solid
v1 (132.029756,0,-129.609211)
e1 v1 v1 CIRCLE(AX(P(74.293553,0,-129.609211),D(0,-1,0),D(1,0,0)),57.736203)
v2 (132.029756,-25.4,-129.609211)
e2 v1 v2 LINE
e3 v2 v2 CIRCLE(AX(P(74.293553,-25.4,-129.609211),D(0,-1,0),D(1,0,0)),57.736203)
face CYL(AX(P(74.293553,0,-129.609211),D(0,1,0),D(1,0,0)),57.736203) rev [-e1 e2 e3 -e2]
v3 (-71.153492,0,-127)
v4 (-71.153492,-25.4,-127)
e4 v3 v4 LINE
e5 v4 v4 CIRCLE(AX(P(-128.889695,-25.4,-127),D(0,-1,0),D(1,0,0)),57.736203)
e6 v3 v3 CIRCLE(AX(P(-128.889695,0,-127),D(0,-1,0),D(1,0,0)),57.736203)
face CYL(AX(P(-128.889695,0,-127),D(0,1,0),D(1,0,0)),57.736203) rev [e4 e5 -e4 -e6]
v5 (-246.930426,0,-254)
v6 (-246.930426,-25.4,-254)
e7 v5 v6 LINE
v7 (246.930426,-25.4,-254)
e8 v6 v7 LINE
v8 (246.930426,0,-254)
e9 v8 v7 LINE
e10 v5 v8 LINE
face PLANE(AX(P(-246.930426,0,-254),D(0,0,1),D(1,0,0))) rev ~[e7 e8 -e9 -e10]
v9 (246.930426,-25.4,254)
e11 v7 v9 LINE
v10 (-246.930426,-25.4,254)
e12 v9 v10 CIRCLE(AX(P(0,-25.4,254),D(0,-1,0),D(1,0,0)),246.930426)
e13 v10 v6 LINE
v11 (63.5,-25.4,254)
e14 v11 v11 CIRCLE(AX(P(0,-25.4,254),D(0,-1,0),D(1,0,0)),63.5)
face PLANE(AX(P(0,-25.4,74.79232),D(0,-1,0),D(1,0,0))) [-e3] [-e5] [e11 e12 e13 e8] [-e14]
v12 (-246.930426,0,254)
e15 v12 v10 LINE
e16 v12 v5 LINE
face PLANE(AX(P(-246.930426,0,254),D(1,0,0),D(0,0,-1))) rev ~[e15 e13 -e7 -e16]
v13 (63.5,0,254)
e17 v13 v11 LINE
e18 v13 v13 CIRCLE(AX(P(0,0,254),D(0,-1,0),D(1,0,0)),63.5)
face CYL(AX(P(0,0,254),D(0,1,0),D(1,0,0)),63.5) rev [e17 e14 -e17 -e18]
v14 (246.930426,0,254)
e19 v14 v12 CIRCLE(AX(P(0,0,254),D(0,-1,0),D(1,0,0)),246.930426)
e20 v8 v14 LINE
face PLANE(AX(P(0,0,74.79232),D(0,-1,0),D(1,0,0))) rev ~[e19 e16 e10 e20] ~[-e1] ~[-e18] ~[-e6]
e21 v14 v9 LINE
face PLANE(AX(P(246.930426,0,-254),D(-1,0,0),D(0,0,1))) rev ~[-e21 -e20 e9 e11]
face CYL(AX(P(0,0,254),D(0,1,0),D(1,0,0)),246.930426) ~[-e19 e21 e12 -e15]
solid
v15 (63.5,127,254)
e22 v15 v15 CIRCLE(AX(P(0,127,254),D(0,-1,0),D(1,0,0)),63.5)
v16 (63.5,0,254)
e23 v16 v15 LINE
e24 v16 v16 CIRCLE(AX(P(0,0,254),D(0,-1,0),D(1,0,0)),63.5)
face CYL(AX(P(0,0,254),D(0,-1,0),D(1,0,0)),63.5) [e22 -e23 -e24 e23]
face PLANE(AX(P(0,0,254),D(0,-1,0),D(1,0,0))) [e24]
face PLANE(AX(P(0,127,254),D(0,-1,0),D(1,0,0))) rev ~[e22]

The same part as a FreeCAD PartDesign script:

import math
import FreeCAD as App
import Part
import Sketcher

V = App.Vector
Q = App.Units.Quantity

doc = App.newDocument("Part")
body = doc.addObject("PartDesign::Body", "Body")
body.AllowCompound = True

sketch1 = body.newObject("Sketcher::SketchObject", "Sketch")
sketch1.AttachmentSupport = (doc.getObject("XZ_Plane"), [""])
sketch1.MapMode = "FlatFace"
sketch1.addGeometry(Part.LineSegment(V(-247, 254, 0), V(-247, -254, 0)), False)
sketch1.addGeometry(Part.LineSegment(V(-247, -254, 0), V(247, -254, 0)), False)
sketch1.addGeometry(Part.LineSegment(V(247, -254, 0), V(247, 254, 0)), False)
sketch1.addGeometry(Part.ArcOfCircle(Part.Circle(V(0, 254, 0), V(0, 0, 1), 247), math.radians(0), math.radians(180)), False)
sketch1.addGeometry(Part.Circle(V(-129, -127, 0), V(0, 0, 1), 58), False)
sketch1.addGeometry(Part.Circle(V(74, -130, 0), V(0, 0, 1), 58), False)
sketch1.addGeometry(Part.Circle(V(0, 254, 0), V(0, 0, 1), 64), False)
sketch1.addConstraint(Sketcher.Constraint("Coincident", 0, 2, 1, 1))
sketch1.addConstraint(Sketcher.Constraint("Coincident", 1, 2, 2, 1))
sketch1.addConstraint(Sketcher.Constraint("Tangent", 2, 2, 3, 1))
sketch1.addConstraint(Sketcher.Constraint("Tangent", 3, 2, 0, 1))
sketch1.addConstraint(Sketcher.Constraint("Vertical", 0))
sketch1.addConstraint(Sketcher.Constraint("Horizontal", 1))
sketch1.addConstraint(Sketcher.Constraint("Vertical", 2))
sketch1.addConstraint(Sketcher.Constraint("Coincident", 6, 3, 3, 3))
sketch1.addConstraint(Sketcher.Constraint("Equal", 4, 5))
sketch1.addConstraint(Sketcher.Constraint("Symmetric", 0, 2, 2, 2, -1, 1))
sketch1.addConstraint(Sketcher.Constraint("Diameter", 6, Q("5 in")))
sketch1.addConstraint(Sketcher.Constraint("DistanceY", 0, 2, 0, 1, Q("20 in")))
sketch1.addConstraint(Sketcher.Constraint("DistanceY", 4, 3, -1, 1, Q("5 in")))
sketch1.addConstraint(Sketcher.Constraint("Diameter", 4, Q("115.472406 mm")))
sketch1.addConstraint(Sketcher.Constraint("Radius", 3, Q("246.930426 mm")))
sketch1.addConstraint(Sketcher.Constraint("DistanceY", 5, 3, -1, 1, Q("129.609211 mm")))
sketch1.addConstraint(Sketcher.Constraint("DistanceX", 4, 3, 5, 3, Q("203.183248 mm")))
sketch1.addConstraint(Sketcher.Constraint("DistanceX", 0, 2, 4, 3, Q("118.040731 mm")))
pad1 = body.newObject("PartDesign::Pad", "Pad")
pad1.Profile = sketch1
pad1.Length = Q("1 in")

sketch2 = body.newObject("Sketcher::SketchObject", "Sketch001")
sketch2.AttachmentSupport = (doc.getObject("XZ_Plane"), [""])
sketch2.MapMode = "FlatFace"
sketch2.addGeometry(Part.Circle(V(0, 254, 0), V(0, 0, 1), 64), False)
sketch2.addConstraint(Sketcher.Constraint("PointOnObject", 0, 3, -2))
sketch2.addConstraint(Sketcher.Constraint("Diameter", 0, Q("5 in")))
sketch2.addConstraint(Sketcher.Constraint("DistanceY", -1, 1, 0, 3, Q("10 in")))
pad2 = body.newObject("PartDesign::Pad", "Pad001")
pad2.Profile = sketch2
pad2.Length = Q("5 in")
pad2.Reversed = True

doc.recompute()
